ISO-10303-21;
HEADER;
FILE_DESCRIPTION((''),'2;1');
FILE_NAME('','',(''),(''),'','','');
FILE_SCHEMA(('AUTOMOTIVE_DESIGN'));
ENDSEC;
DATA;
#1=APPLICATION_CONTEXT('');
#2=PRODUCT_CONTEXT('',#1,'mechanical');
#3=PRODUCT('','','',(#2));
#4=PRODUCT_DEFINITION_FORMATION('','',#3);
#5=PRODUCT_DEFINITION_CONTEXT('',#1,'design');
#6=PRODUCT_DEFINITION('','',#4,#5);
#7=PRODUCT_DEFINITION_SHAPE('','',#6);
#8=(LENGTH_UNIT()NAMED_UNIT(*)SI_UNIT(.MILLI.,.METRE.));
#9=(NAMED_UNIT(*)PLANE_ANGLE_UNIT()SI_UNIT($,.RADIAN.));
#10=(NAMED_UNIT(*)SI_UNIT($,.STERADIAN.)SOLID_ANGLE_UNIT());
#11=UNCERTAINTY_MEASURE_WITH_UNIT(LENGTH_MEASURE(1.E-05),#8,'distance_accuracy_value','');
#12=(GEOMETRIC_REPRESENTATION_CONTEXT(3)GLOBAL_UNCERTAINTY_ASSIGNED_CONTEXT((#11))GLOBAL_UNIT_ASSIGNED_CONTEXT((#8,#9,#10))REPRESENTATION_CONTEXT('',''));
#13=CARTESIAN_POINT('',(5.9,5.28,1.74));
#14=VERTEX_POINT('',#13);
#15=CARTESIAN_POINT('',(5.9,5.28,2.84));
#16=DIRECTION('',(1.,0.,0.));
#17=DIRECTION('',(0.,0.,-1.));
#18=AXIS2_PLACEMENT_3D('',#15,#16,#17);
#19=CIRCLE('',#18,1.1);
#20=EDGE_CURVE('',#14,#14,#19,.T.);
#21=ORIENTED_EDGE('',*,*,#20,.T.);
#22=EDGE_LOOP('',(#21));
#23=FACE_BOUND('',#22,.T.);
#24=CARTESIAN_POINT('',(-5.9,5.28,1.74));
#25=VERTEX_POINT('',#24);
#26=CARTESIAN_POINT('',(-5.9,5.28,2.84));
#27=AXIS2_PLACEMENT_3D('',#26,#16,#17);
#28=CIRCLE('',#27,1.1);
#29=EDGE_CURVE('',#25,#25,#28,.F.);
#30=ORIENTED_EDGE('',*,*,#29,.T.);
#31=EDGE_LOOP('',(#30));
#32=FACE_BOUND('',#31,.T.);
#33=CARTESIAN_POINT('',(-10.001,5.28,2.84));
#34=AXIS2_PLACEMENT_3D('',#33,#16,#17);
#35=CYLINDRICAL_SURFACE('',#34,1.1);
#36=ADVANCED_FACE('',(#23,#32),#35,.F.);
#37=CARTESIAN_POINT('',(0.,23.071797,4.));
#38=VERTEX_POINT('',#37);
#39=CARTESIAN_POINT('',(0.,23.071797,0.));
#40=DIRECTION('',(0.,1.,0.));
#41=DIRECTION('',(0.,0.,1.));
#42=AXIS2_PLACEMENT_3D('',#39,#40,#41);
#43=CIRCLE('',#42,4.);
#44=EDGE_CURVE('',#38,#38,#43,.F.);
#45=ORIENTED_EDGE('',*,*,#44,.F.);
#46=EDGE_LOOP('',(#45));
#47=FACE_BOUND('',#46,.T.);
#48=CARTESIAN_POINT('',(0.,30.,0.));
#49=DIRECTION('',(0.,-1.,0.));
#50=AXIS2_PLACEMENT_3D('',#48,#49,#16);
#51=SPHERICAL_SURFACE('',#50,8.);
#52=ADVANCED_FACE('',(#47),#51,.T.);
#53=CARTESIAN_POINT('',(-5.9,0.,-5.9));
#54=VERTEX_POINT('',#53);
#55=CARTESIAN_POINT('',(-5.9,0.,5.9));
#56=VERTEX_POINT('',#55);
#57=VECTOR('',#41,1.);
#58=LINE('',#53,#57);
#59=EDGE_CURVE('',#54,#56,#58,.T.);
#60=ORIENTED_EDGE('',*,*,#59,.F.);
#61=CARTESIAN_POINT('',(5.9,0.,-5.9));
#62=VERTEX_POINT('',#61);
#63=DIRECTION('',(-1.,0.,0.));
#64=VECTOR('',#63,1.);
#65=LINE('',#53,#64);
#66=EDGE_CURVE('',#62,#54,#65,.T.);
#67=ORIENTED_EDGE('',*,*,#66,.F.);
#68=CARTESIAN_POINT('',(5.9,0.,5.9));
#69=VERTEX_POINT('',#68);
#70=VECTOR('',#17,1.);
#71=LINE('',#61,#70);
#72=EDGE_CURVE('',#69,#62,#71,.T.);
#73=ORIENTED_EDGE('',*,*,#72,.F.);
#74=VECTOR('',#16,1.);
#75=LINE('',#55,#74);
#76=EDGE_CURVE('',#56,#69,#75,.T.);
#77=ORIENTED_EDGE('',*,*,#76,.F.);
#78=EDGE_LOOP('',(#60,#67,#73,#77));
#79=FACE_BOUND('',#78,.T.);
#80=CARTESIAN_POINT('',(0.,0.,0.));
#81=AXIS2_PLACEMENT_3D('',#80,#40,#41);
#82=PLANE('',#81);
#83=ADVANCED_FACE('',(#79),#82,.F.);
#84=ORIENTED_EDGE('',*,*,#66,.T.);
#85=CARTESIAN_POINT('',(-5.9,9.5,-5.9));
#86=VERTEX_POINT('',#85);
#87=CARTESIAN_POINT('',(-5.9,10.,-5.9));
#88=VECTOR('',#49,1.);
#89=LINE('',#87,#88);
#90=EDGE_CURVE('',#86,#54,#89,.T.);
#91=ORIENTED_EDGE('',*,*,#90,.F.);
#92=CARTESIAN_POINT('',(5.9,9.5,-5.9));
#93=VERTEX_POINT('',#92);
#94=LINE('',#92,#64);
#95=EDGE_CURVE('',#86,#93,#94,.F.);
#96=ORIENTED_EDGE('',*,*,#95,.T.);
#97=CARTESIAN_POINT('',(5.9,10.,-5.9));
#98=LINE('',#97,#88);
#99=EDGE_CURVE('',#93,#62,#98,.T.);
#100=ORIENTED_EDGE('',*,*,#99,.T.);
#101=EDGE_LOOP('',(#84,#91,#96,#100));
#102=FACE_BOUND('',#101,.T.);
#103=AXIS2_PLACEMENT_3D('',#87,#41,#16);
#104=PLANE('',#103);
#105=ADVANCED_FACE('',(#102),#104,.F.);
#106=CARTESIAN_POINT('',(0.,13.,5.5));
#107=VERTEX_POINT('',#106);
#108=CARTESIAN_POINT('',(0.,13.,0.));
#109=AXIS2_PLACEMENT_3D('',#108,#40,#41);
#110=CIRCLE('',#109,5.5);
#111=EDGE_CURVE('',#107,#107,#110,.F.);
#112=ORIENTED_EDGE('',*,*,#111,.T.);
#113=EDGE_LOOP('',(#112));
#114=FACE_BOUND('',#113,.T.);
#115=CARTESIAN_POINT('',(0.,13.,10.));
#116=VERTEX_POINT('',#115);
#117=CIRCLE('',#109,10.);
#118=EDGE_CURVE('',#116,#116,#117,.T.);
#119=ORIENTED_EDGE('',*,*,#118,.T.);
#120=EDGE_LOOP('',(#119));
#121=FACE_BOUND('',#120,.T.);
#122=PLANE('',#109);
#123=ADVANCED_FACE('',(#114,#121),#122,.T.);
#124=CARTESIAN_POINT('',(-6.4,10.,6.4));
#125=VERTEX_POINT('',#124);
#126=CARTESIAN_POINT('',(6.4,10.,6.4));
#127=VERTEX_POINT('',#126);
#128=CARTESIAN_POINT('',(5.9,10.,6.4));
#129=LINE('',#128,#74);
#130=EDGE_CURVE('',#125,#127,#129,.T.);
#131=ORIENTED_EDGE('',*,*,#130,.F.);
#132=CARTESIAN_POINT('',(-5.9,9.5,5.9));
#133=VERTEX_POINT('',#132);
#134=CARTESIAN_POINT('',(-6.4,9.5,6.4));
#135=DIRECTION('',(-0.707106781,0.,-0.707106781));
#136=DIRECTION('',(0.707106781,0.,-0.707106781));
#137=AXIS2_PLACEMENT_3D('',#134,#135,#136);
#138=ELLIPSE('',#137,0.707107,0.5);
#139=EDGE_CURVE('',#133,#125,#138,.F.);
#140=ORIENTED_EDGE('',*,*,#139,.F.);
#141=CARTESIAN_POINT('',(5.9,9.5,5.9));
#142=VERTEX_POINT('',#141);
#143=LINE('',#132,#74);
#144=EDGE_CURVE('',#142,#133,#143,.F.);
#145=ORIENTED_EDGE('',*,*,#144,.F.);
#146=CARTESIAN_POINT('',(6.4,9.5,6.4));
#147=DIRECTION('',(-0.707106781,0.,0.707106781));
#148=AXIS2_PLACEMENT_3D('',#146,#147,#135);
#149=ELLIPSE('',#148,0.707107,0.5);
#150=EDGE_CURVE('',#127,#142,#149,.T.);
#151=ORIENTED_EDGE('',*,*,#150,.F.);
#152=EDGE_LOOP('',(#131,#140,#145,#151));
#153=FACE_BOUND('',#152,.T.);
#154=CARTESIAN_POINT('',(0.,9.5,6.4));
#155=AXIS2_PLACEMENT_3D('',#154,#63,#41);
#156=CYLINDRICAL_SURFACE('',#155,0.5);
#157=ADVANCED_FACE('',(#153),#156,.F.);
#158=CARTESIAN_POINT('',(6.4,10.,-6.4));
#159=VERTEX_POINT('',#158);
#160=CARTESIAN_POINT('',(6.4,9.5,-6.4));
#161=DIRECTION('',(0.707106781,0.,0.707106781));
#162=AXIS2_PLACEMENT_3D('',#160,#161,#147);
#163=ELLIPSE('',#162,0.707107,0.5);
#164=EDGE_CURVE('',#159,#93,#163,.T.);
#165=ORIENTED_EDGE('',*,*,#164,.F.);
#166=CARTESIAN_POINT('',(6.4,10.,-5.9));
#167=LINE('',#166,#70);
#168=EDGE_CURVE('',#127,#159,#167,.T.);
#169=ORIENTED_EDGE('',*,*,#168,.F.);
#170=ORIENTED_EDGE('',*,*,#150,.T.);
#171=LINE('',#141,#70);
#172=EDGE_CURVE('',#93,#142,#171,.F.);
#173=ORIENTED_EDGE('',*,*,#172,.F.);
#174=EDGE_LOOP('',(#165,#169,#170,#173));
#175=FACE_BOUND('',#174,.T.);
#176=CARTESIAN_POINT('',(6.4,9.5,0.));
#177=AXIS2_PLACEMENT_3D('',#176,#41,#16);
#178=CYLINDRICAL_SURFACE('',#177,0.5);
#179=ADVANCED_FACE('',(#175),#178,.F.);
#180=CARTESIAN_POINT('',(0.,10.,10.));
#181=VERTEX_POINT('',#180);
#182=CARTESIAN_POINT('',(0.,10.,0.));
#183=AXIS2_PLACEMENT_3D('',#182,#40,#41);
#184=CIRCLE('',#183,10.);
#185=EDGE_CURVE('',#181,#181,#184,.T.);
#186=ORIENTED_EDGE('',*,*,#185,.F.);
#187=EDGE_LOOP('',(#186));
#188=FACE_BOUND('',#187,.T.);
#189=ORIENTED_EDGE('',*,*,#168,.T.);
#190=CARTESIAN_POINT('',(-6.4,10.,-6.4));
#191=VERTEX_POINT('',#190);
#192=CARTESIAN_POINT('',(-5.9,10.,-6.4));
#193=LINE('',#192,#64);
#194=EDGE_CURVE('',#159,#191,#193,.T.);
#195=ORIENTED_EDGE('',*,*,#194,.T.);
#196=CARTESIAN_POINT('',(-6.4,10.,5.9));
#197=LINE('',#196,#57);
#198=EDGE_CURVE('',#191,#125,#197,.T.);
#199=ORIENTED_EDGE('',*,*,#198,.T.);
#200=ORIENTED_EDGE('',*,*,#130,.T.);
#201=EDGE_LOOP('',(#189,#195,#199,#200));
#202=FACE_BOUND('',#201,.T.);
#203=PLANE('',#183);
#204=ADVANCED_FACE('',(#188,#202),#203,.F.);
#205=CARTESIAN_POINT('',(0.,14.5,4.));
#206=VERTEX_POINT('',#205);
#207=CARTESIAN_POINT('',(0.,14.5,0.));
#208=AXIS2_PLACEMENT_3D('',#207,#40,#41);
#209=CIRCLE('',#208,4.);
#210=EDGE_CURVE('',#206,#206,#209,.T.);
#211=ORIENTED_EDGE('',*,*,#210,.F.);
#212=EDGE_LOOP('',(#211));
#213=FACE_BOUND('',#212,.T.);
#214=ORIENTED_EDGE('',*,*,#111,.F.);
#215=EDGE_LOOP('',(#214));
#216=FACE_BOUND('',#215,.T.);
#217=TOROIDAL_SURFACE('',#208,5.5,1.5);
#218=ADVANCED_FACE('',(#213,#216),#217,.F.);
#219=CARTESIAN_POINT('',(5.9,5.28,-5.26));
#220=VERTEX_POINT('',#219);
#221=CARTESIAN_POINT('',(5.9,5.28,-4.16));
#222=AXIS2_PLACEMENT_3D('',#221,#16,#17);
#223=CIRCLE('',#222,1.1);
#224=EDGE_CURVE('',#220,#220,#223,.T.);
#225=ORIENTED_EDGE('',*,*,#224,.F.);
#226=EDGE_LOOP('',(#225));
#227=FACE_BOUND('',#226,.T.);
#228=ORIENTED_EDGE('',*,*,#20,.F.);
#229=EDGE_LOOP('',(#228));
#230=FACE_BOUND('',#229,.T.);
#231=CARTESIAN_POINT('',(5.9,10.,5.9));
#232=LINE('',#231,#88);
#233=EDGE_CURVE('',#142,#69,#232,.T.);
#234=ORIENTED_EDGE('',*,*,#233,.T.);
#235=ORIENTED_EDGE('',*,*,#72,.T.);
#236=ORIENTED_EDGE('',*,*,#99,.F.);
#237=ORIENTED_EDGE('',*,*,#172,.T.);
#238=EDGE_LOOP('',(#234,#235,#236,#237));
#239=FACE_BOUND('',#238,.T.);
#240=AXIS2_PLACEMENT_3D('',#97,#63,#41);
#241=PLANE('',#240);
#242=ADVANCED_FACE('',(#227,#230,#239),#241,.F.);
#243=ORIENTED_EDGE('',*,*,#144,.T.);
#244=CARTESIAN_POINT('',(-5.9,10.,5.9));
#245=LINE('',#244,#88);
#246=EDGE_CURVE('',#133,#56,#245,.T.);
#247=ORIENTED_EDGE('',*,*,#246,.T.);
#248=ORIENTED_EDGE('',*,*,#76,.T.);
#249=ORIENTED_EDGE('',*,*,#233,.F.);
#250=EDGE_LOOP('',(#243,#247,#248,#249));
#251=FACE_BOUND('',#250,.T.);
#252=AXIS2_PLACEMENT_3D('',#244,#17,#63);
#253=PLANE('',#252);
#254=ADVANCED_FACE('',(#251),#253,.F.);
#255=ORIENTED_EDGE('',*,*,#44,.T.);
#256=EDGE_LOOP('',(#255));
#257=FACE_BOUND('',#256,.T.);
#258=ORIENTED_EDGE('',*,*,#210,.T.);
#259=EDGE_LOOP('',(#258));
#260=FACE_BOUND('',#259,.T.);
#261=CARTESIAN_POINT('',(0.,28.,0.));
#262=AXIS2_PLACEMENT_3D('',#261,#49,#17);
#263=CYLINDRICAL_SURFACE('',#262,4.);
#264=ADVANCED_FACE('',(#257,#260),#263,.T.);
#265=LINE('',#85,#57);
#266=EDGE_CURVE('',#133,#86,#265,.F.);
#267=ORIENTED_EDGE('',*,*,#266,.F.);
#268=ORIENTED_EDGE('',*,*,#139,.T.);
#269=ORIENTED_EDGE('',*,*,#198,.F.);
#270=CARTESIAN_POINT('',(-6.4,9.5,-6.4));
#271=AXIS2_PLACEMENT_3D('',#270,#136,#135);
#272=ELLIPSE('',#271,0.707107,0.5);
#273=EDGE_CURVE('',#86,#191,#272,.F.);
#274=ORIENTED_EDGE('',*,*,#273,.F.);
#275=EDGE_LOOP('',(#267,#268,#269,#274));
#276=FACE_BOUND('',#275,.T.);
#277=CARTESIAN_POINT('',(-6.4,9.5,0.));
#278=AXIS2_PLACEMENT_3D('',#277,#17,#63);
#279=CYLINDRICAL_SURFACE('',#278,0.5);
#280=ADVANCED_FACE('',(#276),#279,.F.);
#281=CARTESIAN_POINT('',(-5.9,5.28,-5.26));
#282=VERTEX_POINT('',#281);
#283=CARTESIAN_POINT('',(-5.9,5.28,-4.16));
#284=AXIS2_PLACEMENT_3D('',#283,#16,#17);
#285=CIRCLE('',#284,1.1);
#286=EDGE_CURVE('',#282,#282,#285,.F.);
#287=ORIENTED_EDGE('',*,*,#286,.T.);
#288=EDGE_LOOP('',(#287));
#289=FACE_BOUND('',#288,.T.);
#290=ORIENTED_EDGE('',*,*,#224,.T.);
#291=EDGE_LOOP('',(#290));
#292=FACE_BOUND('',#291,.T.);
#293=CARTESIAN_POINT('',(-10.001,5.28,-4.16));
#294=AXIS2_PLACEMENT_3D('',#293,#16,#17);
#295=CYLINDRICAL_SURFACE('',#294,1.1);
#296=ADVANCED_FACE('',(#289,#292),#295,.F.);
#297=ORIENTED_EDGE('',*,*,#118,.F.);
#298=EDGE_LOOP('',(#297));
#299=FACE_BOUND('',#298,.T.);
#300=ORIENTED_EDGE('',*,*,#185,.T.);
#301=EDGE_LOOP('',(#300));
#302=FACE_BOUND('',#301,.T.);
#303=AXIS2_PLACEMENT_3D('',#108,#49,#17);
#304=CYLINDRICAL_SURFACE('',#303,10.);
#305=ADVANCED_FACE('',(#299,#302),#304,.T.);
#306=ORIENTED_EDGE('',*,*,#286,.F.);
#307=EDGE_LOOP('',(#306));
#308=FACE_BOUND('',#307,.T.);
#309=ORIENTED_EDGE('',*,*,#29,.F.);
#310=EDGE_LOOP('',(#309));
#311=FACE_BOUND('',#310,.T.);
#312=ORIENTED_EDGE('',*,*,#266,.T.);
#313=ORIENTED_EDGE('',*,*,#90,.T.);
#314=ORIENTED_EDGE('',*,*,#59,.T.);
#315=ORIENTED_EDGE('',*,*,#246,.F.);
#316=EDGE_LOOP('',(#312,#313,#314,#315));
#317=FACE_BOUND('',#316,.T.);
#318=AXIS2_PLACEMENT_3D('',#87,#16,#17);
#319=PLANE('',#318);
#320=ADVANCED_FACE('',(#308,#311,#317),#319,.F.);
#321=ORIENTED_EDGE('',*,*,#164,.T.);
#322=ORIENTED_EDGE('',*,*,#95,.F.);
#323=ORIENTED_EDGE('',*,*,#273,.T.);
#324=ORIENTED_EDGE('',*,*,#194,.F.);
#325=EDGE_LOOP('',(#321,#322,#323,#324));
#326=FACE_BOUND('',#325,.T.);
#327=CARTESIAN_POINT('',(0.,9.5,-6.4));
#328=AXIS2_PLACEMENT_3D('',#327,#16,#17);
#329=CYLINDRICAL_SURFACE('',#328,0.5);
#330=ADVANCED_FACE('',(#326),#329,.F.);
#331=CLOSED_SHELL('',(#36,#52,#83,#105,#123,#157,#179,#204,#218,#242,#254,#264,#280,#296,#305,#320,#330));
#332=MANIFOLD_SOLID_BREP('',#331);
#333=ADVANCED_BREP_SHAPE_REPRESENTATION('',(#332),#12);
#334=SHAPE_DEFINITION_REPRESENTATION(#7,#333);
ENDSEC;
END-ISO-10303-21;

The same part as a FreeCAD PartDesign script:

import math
import FreeCAD as App
import Part
import Sketcher
from FreeCAD import Vector


def edges_at(feature, points):
    """Names of the edges that pass closest to the given points."""
    edges = feature.Shape.Edges
    near = lambda p: min(range(len(edges)), key=lambda i: edges[i].distToShape(Part.Vertex(*p))[0])
    return sorted({f"Edge{near(p) + 1}" for p in points})


def add_polygon(sketch, points):
    """Adds a closed chain of lines whose ends are joined by coincident constraints."""
    first, n = sketch.GeometryCount, len(points)
    for a, b in zip(points, points[1:] + points[:1]):
        sketch.addGeometry(Part.LineSegment(App.Vector(*a, 0), App.Vector(*b, 0)), False)
    for i in range(n):
        sketch.addConstraint(Sketcher.Constraint("Coincident", first + i, 2, first + (i + 1) % n, 1))

doc = App.newDocument("Part")
params = doc.addObject("Spreadsheet::Sheet", "Params")
for row, (alias, value) in enumerate([
    ("sketch1_width", "11.8 mm"),
    ("pad1_length", "10 mm"),
    ("sketch2_diameter", "20 mm"),
    ("pad2_length", "3 mm"),
    ("sketch3_diameter", "8 mm"),
    ("pad3_length", "15 mm"),
    ("sketch4_radius", "8 mm"),
    ("revolution_angle", "360 deg"),
    ("fillet_radius", "0.5 mm"),
    ("fillet2_radius", "1.5 mm"),
    ("sketch5_diameter", "2.2 mm"),
    ("sketch6_diameter", "2.2 mm"),
], start=1):
    params.set(f"A{row}", alias)
    params.set(f"B{row}", "=" + value)
    params.setAlias(f"B{row}", alias)

body = doc.addObject("PartDesign::Body", "Body")

sketch1 = body.newObject("Sketcher::SketchObject", "Sketch")
sketch1.AttachmentSupport = (doc.getObject("XZ_Plane"), [""])
sketch1.MapMode = "FlatFace"
add_polygon(sketch1, [(-6, -6), (-6, 6), (6, 6), (6, -6)])
sketch1.addConstraint(Sketcher.Constraint("Vertical", 0))
sketch1.addConstraint(Sketcher.Constraint("Horizontal", 1))
sketch1.addConstraint(Sketcher.Constraint("Vertical", 2))
sketch1.addConstraint(Sketcher.Constraint("Horizontal", 3))
sketch1.addConstraint(Sketcher.Constraint("Symmetric", 0, 2, 2, 2, -1, 1))
sketch1.addConstraint(Sketcher.Constraint("Equal", 3, 0))
sketch1.addConstraint(Sketcher.Constraint("DistanceX", 1, 1, 1, 2, 11.8))
sketch1.setExpression("Constraints[10]", "Params.sketch1_width")
pad1 = body.newObject("PartDesign::Pad", "Pad")
pad1.Profile = sketch1
pad1.setExpression("Length", "Params.pad1_length")
pad1.Reversed = True

sketch2 = body.newObject("Sketcher::SketchObject", "Sketch001")
sketch2.AttachmentSupport = (doc.getObject("XZ_Plane"), [""])
sketch2.MapMode = "FlatFace"
sketch2.AttachmentOffset = App.Placement(Vector(0, 0, -10), App.Rotation())
sketch2.addGeometry(Part.Circle(Vector(0, 0, 0), Vector(0, 0, 1), 10), False)
sketch2.addConstraint(Sketcher.Constraint("Coincident", 0, 3, -1, 1))
sketch2.addConstraint(Sketcher.Constraint("Diameter", 0, 20.0))
sketch2.setExpression("Constraints[1]", "Params.sketch2_diameter")
pad2 = body.newObject("PartDesign::Pad", "Pad001")
pad2.Profile = sketch2
pad2.setExpression("Length", "Params.pad2_length")
pad2.Reversed = True

sketch3 = body.newObject("Sketcher::SketchObject", "Sketch002")
sketch3.AttachmentSupport = (doc.getObject("XZ_Plane"), [""])
sketch3.MapMode = "FlatFace"
sketch3.AttachmentOffset = App.Placement(Vector(0, 0, -13), App.Rotation())
sketch3.addGeometry(Part.Circle(Vector(0, 0, 0), Vector(0, 0, 1), 4), False)
sketch3.addConstraint(Sketcher.Constraint("Coincident", 0, 3, -1, 1))
sketch3.addConstraint(Sketcher.Constraint("Diameter", 0, 8.0))
sketch3.setExpression("Constraints[1]", "Params.sketch3_diameter")
pad3 = body.newObject("PartDesign::Pad", "Pad002")
pad3.Profile = sketch3
pad3.setExpression("Length", "Params.pad3_length")
pad3.Reversed = True

sketch4 = body.newObject("Sketcher::SketchObject", "Sketch003")
sketch4.AttachmentSupport = (doc.getObject("XY_Plane"), [""])
sketch4.MapMode = "FlatFace"
sketch4.addGeometry(Part.LineSegment(Vector(0, 38, 0), Vector(0, 22, 0)), False)
sketch4.addGeometry(Part.ArcOfCircle(Part.Circle(Vector(0, 30, 0), Vector(0, 0, 1), 8), math.radians(-90), math.radians(90)), False)
sketch4.addConstraint(Sketcher.Constraint("Coincident", 0, 1, 1, 2))
sketch4.addConstraint(Sketcher.Constraint("Coincident", 1, 1, 0, 2))
sketch4.addConstraint(Sketcher.Constraint("Vertical", 0))
sketch4.addConstraint(Sketcher.Constraint("PointOnObject", 1, 3, -2))
sketch4.addConstraint(Sketcher.Constraint("PointOnObject", 0, 1, -2))
sketch4.addConstraint(Sketcher.Constraint("Radius", 1, 8.0))
sketch4.addConstraint(Sketcher.Constraint("DistanceY", -1, 1, 1, 3, 30.0))
sketch4.setExpression("Constraints[5]", "Params.sketch4_radius")
revolution = body.newObject("PartDesign::Revolution", "Revolution")
revolution.Profile = sketch4
revolution.ReferenceAxis = (sketch4, ["V_Axis"])
revolution.setExpression("Angle", "Params.revolution_angle")
doc.recompute()

fillet = body.newObject("PartDesign::Fillet", "Fillet")
fillet.Base = (revolution, edges_at(revolution, [
    (-5.9, 10, 0),
    (0, 10, 5.9),
    (5.9, 10, 0),
    (0, 10, -5.9),
]))
fillet.setExpression("Radius", "Params.fillet_radius")
doc.recompute()

fillet2 = body.newObject("PartDesign::Fillet", "Fillet001")
fillet2.Base = (fillet, edges_at(fillet, [(0, 13, -4)]))
fillet2.setExpression("Radius", "Params.fillet2_radius")

sketch5 = body.newObject("Sketcher::SketchObject", "Sketch004")
sketch5.AttachmentSupport = (doc.getObject("YZ_Plane"), [""])
sketch5.MapMode = "FlatFace"
sketch5.AttachmentOffset = App.Placement(Vector(0, 0, 5.9), App.Rotation())
sketch5.addGeometry(Part.Circle(Vector(5.3, 2.8, 0), Vector(0, 0, 1), 1.1), False)
sketch5.addConstraint(Sketcher.Constraint("Diameter", 0, 2.2))
sketch5.addConstraint(Sketcher.Constraint("DistanceX", -1, 1, 0, 3, 5.28))
sketch5.addConstraint(Sketcher.Constraint("DistanceY", -1, 1, 0, 3, 2.84))
sketch5.setExpression("Constraints[0]", "Params.sketch5_diameter")
pocket1 = body.newObject("PartDesign::Pocket", "Pocket")
pocket1.Profile = sketch5
pocket1.Type = "UpToFirst"

sketch6 = body.newObject("Sketcher::SketchObject", "Sketch005")
sketch6.AttachmentSupport = (doc.getObject("YZ_Plane"), [""])
sketch6.MapMode = "FlatFace"
sketch6.AttachmentOffset = App.Placement(Vector(0, 0, 5.9), App.Rotation())
sketch6.addGeometry(Part.Circle(Vector(5.3, -4.2, 0), Vector(0, 0, 1), 1.1), False)
sketch6.addConstraint(Sketcher.Constraint("Diameter", 0, 2.2))
sketch6.addConstraint(Sketcher.Constraint("DistanceX", -1, 1, 0, 3, 5.28))
sketch6.addConstraint(Sketcher.Constraint("DistanceY", 0, 3, -1, 1, 4.16))
sketch6.setExpression("Constraints[0]", "Params.sketch6_diameter")
pocket2 = body.newObject("PartDesign::Pocket", "Pocket001")
pocket2.Profile = sketch6
pocket2.Type = "UpToFirst"

doc.recompute()
